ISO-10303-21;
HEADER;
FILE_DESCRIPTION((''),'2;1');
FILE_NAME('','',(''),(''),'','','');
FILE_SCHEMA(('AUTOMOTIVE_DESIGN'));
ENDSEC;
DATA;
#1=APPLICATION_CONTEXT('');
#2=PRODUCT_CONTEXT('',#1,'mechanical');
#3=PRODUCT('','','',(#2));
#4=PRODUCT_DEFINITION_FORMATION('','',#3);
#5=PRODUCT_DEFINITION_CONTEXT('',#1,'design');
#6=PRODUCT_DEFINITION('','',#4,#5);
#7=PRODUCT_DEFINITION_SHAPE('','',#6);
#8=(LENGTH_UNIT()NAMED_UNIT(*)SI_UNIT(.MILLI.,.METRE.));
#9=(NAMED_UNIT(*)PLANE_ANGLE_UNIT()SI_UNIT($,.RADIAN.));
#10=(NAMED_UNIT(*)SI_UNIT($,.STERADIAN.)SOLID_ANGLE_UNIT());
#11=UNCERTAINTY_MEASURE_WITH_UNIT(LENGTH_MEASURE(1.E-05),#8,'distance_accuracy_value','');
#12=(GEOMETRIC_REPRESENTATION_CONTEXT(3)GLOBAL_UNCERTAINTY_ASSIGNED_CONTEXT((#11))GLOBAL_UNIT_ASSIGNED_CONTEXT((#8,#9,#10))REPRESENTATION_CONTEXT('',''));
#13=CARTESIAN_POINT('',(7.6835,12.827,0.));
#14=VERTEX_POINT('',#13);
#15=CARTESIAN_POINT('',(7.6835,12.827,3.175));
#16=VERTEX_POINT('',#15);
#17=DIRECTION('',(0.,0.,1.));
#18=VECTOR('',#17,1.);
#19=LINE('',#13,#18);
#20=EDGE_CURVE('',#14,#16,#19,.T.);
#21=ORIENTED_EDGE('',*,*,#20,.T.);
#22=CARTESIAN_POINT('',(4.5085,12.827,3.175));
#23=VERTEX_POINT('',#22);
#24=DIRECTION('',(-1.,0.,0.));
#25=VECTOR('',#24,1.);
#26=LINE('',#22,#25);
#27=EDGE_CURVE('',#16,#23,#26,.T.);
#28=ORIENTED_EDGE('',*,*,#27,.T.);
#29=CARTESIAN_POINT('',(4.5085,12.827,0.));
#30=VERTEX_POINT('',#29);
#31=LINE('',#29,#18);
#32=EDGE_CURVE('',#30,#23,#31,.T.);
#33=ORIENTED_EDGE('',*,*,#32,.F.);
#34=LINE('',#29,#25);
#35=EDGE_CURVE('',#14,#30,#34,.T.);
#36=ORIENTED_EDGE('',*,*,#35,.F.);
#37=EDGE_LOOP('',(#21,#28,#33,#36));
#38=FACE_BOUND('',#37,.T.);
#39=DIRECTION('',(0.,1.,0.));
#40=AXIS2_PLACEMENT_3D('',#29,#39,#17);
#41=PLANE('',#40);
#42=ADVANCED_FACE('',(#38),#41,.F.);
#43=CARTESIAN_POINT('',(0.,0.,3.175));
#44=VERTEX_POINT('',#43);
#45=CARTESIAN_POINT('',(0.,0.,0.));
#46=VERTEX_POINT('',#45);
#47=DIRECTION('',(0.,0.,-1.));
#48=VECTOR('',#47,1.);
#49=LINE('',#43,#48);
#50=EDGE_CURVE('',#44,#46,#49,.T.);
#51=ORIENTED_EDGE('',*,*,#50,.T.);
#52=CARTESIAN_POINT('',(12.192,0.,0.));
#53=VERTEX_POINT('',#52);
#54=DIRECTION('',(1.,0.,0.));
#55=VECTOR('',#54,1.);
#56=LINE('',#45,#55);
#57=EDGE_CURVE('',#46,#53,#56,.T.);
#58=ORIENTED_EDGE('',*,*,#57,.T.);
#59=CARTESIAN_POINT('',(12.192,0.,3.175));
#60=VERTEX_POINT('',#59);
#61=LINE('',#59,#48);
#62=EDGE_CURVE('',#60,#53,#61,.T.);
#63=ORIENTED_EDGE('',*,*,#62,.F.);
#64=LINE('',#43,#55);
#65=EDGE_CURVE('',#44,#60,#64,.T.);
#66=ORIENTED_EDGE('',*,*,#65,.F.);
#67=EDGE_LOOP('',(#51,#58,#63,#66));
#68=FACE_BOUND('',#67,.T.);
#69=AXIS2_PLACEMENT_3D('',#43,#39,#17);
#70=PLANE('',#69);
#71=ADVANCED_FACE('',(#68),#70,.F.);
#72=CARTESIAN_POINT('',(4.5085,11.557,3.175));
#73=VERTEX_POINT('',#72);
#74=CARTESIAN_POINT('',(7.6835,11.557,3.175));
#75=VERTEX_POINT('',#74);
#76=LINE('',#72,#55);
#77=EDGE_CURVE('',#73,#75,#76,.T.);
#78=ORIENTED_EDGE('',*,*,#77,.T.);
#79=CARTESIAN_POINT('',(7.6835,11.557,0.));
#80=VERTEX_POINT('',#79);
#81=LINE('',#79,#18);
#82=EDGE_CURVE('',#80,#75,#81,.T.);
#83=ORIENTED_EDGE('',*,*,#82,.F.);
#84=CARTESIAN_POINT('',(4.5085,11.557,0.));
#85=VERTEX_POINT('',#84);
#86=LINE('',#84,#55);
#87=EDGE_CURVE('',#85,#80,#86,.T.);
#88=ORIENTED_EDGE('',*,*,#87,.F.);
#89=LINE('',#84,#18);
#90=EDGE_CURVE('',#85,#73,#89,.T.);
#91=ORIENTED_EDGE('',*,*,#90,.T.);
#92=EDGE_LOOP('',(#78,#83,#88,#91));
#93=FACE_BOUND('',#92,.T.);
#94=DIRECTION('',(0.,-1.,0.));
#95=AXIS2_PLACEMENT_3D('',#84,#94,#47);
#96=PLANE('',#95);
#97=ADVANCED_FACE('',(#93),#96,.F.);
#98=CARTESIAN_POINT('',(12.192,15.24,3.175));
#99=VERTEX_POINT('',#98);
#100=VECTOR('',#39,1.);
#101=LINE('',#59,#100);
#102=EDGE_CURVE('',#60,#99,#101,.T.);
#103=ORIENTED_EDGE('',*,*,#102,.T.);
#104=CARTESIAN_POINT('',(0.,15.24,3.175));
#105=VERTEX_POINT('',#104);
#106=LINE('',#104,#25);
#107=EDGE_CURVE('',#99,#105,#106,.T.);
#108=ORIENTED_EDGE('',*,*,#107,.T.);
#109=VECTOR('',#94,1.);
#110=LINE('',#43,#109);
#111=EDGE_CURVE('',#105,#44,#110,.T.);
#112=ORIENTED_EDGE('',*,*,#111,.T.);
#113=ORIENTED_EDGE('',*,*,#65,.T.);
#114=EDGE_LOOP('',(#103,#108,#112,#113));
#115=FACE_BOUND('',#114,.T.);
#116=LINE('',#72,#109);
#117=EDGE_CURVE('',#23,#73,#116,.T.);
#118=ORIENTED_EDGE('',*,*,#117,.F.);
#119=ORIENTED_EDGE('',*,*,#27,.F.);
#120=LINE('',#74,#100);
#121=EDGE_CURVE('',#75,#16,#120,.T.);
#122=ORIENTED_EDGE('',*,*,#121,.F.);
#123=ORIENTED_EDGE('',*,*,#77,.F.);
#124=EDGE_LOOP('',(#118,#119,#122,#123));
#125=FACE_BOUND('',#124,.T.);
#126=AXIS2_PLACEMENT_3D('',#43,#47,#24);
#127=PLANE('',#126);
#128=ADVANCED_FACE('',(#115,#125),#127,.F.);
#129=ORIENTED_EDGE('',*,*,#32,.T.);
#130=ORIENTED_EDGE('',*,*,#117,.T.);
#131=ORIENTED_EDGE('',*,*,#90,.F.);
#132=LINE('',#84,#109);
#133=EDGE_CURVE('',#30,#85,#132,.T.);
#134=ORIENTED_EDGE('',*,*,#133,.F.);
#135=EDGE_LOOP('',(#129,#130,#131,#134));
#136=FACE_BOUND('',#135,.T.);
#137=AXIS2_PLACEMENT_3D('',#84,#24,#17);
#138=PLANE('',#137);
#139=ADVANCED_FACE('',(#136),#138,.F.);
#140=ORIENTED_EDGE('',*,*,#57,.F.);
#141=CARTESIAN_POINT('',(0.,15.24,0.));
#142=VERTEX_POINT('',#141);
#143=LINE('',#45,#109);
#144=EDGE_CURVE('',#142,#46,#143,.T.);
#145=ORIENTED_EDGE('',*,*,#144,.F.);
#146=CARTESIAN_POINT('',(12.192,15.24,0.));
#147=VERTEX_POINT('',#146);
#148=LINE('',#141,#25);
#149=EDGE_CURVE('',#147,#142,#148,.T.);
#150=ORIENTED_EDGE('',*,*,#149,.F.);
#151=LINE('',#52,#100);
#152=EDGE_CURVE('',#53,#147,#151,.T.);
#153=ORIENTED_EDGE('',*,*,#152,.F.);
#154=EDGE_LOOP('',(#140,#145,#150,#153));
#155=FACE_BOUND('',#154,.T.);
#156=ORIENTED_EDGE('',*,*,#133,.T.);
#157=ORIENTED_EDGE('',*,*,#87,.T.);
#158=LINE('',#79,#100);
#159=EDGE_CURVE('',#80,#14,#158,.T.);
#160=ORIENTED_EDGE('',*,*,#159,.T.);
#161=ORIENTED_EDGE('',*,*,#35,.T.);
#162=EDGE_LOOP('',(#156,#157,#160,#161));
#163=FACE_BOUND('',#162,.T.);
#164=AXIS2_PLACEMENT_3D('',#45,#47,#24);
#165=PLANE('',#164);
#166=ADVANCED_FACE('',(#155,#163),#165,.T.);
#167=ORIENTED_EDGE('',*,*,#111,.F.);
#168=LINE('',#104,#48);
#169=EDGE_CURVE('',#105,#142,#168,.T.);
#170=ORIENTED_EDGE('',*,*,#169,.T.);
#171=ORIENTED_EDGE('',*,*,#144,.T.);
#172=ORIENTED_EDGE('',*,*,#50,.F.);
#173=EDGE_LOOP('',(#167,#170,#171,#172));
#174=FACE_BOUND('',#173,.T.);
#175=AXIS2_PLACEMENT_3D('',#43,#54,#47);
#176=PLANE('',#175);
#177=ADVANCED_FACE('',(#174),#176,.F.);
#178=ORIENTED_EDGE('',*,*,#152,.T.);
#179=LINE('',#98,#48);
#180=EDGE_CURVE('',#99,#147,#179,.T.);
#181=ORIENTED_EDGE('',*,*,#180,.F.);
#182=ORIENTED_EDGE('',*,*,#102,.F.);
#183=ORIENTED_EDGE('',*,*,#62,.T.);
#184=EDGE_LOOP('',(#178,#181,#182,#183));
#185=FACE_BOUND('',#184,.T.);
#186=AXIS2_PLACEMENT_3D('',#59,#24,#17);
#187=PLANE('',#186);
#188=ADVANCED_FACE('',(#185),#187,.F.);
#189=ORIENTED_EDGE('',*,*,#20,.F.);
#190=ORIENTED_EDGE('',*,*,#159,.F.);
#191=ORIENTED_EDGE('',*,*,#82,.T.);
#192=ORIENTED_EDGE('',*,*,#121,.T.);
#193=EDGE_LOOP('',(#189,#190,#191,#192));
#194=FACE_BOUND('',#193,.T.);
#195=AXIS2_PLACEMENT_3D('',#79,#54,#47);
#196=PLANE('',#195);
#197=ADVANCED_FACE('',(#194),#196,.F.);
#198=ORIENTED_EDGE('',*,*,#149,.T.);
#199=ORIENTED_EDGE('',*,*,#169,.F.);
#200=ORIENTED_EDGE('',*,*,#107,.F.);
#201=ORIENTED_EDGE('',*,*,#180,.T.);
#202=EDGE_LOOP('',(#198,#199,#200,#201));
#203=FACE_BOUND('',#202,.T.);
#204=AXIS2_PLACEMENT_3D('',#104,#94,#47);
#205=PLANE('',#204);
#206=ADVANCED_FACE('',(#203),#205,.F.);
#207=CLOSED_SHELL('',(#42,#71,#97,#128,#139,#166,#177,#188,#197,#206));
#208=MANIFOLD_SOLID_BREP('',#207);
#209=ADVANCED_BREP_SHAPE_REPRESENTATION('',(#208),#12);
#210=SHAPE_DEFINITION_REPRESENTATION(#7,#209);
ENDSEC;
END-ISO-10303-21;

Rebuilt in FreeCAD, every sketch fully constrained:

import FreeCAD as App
import Part
import Sketcher

V = App.Vector
Q = App.Units.Quantity


def add_polygon(sketch, points):
    """Adds a closed chain of lines whose ends are joined by coincident constraints."""
    first, n = sketch.GeometryCount, len(points)
    for a, b in zip(points, points[1:] + points[:1]):
        sketch.addGeometry(Part.LineSegment(App.Vector(*a, 0), App.Vector(*b, 0)), False)
    for i in range(n):
        sketch.addConstraint(Sketcher.Constraint("Coincident", first + i, 2, first + (i + 1) % n, 1))

doc = App.newDocument("Part")
body = doc.addObject("PartDesign::Body", "Body")

# Sketch on XY plane
sketch1 = body.newObject("Sketcher::SketchObject", "Sketch")
sketch1.AttachmentSupport = (doc.getObject("XY_Plane"), [""])
sketch1.MapMode = "FlatFace"
add_polygon(sketch1, [(0, 15), (0, 0), (12, 0), (12, 15)])  # lines 0-3
sketch1.addConstraint([
    Sketcher.Constraint("Vertical", 0),
    Sketcher.Constraint("Horizontal", 1),
    Sketcher.Constraint("Vertical", 2),
    Sketcher.Constraint("Horizontal", 3),
    Sketcher.Constraint("Coincident", 0, 2, -1, 1),
    Sketcher.Constraint("DistanceY", 0, 2, 0, 1, Q("0.6 in")),
    Sketcher.Constraint("DistanceX", 1, 1, 1, 2, Q("0.48 in")),
])
pad1 = body.newObject("PartDesign::Pad", "Pad")
pad1.Profile = sketch1
pad1.Length = Q("0.125 in")

# Sketch on XY plane
sketch2 = body.newObject("Sketcher::SketchObject", "Sketch001")
sketch2.AttachmentSupport = (doc.getObject("XY_Plane"), [""])
sketch2.MapMode = "FlatFace"
sketch2.AttachmentOffset = App.Placement(V(0, 0, 0.125 * 25.4), App.Rotation())
add_polygon(sketch2, [(4.5, 12.8), (4.5, 11.6), (7.7, 11.6), (7.7, 12.8)])  # lines 0-3
sketch2.addConstraint([
    Sketcher.Constraint("Vertical", 0),
    Sketcher.Constraint("Horizontal", 1),
    Sketcher.Constraint("Vertical", 2),
    Sketcher.Constraint("Horizontal", 3),
    Sketcher.Constraint("DistanceY", 0, 2, 0, 1, Q("0.05 in")),
    Sketcher.Constraint("DistanceX", 1, 1, 1, 2, Q("0.125 in")),
    Sketcher.Constraint("DistanceY", -1, 1, 0, 2, Q("0.455 in")),
    Sketcher.Constraint("DistanceX", -1, 1, 0, 2, Q("0.1775 in")),
])
pocket1 = body.newObject("PartDesign::Pocket", "Pocket")
pocket1.Profile = sketch2
pocket1.Length = Q("0.125 in")

doc.recompute()
